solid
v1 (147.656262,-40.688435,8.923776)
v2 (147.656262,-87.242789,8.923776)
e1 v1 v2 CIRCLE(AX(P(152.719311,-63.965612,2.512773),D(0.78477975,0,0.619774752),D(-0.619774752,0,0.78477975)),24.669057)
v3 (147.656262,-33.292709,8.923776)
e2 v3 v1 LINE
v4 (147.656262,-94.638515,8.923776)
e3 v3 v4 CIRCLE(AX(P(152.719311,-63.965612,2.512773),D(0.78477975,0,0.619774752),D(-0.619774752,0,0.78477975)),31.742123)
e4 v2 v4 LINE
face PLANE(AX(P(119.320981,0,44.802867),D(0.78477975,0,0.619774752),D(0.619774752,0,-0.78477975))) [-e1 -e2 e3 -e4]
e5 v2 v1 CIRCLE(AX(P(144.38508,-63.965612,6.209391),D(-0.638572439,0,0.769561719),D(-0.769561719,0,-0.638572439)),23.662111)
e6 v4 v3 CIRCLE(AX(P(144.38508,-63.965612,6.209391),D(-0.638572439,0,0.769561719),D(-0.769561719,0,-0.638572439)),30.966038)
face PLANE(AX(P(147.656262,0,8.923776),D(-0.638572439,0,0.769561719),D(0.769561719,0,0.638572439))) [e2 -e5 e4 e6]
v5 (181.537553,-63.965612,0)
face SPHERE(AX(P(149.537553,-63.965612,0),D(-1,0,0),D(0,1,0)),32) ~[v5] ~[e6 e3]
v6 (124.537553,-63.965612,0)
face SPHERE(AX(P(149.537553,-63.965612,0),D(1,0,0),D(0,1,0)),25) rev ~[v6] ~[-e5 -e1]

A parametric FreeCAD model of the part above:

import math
import FreeCAD as App
import Part
import Sketcher
Q = App.Units.Quantity

doc = App.newDocument("Part")
body = doc.addObject("PartDesign::Body", "Body")

# Sketch on XY plane
sketch1 = body.newObject("Sketcher::SketchObject", "Sketch")
sketch1.AttachmentSupport = (doc.getObject("XY_Plane"), [""])
sketch1.MapMode = "FlatFace"
sketch1.addGeometry([
    Part.ArcOfCircle(Part.Circle(App.Vector(150, -64, 0), App.Vector(0, 0, 1), 25), math.radians(0), math.radians(180)),
    Part.LineSegment(App.Vector(175, -64, 0), App.Vector(182, -64, 0)),
    Part.ArcOfCircle(Part.Circle(App.Vector(150, -64, 0), App.Vector(0, 0, 1), 32), math.radians(0), math.radians(180)),
    Part.LineSegment(App.Vector(118, -64, 0), App.Vector(125, -64, 0)),
], False)
sketch1.addGeometry(Part.LineSegment(App.Vector(118, -64, 0), App.Vector(182, -64, 0)), True)  # axis
sketch1.addConstraint([
    Sketcher.Constraint("Coincident", 0, 1, 1, 1),
    Sketcher.Constraint("Coincident", 1, 2, 2, 1),
    Sketcher.Constraint("Coincident", 2, 2, 3, 1),
    Sketcher.Constraint("Coincident", 3, 2, 0, 2),
    Sketcher.Constraint("Horizontal", 1),
    Sketcher.Constraint("Horizontal", 3),
    Sketcher.Constraint("Horizontal", 4),
    Sketcher.Constraint("Coincident", 2, 3, 0, 3),
    Sketcher.Constraint("Coincident", 4, 1, 2, 2),
    Sketcher.Constraint("Coincident", 4, 2, 1, 2),
    Sketcher.Constraint("Horizontal", 2, 3, 0, 1),
    Sketcher.Constraint("Radius", 0, Q("25 mm")),
    Sketcher.Constraint("Radius", 2, Q("32 mm")),
    Sketcher.Constraint("DistanceY", 2, 2, -1, 1, Q("63.965612 mm")),
    Sketcher.Constraint("DistanceX", -1, 1, 0, 3, Q("149.537553 mm")),
])
revolution = body.newObject("PartDesign::Revolution", "Revolution")
revolution.Profile = sketch1
revolution.ReferenceAxis = (sketch1, ["Axis0"])
revolution.Angle = 360

# Sketch on XZ plane
sketch2 = body.newObject("Sketcher::SketchObject", "Sketch001")
sketch2.AttachmentSupport = (doc.getObject("XZ_Plane"), [""])
sketch2.MapMode = "FlatFace"
sketch2.addGeometry([
    Part.LineSegment(App.Vector(191, 45, 0), App.Vector(119, 45, 0)),
    Part.LineSegment(App.Vector(119, 45, 0), App.Vector(148, 9, 0)),
    Part.LineSegment(App.Vector(148, 9, 0), App.Vector(191, 45, 0)),
], False)
sketch2.addConstraint([
    Sketcher.Constraint("Coincident", 0, 2, 1, 1),
    Sketcher.Constraint("Coincident", 1, 2, 2, 1),
    Sketcher.Constraint("Coincident", 2, 2, 0, 1),
    Sketcher.Constraint("Horizontal", 0),
    Sketcher.Constraint("DistanceX", 0, 2, 0, 1, Q("71.574189 mm")),
    Sketcher.Constraint("DistanceX", -1, 1, 0, 2, Q("119.320981 mm")),
    Sketcher.Constraint("DistanceX", -1, 1, 1, 2, Q("147.656262 mm")),
    Sketcher.Constraint("DistanceY", 1, 2, 0, 2, Q("35.879091 mm")),
    Sketcher.Constraint("DistanceY", -1, 1, 0, 2, Q("44.802867 mm")),
])
pocket1 = body.newObject("PartDesign::Pocket", "Pocket")
pocket1.Profile = sketch2
pocket1.Length = 115.6
pocket1.Reversed = True

doc.recompute()
